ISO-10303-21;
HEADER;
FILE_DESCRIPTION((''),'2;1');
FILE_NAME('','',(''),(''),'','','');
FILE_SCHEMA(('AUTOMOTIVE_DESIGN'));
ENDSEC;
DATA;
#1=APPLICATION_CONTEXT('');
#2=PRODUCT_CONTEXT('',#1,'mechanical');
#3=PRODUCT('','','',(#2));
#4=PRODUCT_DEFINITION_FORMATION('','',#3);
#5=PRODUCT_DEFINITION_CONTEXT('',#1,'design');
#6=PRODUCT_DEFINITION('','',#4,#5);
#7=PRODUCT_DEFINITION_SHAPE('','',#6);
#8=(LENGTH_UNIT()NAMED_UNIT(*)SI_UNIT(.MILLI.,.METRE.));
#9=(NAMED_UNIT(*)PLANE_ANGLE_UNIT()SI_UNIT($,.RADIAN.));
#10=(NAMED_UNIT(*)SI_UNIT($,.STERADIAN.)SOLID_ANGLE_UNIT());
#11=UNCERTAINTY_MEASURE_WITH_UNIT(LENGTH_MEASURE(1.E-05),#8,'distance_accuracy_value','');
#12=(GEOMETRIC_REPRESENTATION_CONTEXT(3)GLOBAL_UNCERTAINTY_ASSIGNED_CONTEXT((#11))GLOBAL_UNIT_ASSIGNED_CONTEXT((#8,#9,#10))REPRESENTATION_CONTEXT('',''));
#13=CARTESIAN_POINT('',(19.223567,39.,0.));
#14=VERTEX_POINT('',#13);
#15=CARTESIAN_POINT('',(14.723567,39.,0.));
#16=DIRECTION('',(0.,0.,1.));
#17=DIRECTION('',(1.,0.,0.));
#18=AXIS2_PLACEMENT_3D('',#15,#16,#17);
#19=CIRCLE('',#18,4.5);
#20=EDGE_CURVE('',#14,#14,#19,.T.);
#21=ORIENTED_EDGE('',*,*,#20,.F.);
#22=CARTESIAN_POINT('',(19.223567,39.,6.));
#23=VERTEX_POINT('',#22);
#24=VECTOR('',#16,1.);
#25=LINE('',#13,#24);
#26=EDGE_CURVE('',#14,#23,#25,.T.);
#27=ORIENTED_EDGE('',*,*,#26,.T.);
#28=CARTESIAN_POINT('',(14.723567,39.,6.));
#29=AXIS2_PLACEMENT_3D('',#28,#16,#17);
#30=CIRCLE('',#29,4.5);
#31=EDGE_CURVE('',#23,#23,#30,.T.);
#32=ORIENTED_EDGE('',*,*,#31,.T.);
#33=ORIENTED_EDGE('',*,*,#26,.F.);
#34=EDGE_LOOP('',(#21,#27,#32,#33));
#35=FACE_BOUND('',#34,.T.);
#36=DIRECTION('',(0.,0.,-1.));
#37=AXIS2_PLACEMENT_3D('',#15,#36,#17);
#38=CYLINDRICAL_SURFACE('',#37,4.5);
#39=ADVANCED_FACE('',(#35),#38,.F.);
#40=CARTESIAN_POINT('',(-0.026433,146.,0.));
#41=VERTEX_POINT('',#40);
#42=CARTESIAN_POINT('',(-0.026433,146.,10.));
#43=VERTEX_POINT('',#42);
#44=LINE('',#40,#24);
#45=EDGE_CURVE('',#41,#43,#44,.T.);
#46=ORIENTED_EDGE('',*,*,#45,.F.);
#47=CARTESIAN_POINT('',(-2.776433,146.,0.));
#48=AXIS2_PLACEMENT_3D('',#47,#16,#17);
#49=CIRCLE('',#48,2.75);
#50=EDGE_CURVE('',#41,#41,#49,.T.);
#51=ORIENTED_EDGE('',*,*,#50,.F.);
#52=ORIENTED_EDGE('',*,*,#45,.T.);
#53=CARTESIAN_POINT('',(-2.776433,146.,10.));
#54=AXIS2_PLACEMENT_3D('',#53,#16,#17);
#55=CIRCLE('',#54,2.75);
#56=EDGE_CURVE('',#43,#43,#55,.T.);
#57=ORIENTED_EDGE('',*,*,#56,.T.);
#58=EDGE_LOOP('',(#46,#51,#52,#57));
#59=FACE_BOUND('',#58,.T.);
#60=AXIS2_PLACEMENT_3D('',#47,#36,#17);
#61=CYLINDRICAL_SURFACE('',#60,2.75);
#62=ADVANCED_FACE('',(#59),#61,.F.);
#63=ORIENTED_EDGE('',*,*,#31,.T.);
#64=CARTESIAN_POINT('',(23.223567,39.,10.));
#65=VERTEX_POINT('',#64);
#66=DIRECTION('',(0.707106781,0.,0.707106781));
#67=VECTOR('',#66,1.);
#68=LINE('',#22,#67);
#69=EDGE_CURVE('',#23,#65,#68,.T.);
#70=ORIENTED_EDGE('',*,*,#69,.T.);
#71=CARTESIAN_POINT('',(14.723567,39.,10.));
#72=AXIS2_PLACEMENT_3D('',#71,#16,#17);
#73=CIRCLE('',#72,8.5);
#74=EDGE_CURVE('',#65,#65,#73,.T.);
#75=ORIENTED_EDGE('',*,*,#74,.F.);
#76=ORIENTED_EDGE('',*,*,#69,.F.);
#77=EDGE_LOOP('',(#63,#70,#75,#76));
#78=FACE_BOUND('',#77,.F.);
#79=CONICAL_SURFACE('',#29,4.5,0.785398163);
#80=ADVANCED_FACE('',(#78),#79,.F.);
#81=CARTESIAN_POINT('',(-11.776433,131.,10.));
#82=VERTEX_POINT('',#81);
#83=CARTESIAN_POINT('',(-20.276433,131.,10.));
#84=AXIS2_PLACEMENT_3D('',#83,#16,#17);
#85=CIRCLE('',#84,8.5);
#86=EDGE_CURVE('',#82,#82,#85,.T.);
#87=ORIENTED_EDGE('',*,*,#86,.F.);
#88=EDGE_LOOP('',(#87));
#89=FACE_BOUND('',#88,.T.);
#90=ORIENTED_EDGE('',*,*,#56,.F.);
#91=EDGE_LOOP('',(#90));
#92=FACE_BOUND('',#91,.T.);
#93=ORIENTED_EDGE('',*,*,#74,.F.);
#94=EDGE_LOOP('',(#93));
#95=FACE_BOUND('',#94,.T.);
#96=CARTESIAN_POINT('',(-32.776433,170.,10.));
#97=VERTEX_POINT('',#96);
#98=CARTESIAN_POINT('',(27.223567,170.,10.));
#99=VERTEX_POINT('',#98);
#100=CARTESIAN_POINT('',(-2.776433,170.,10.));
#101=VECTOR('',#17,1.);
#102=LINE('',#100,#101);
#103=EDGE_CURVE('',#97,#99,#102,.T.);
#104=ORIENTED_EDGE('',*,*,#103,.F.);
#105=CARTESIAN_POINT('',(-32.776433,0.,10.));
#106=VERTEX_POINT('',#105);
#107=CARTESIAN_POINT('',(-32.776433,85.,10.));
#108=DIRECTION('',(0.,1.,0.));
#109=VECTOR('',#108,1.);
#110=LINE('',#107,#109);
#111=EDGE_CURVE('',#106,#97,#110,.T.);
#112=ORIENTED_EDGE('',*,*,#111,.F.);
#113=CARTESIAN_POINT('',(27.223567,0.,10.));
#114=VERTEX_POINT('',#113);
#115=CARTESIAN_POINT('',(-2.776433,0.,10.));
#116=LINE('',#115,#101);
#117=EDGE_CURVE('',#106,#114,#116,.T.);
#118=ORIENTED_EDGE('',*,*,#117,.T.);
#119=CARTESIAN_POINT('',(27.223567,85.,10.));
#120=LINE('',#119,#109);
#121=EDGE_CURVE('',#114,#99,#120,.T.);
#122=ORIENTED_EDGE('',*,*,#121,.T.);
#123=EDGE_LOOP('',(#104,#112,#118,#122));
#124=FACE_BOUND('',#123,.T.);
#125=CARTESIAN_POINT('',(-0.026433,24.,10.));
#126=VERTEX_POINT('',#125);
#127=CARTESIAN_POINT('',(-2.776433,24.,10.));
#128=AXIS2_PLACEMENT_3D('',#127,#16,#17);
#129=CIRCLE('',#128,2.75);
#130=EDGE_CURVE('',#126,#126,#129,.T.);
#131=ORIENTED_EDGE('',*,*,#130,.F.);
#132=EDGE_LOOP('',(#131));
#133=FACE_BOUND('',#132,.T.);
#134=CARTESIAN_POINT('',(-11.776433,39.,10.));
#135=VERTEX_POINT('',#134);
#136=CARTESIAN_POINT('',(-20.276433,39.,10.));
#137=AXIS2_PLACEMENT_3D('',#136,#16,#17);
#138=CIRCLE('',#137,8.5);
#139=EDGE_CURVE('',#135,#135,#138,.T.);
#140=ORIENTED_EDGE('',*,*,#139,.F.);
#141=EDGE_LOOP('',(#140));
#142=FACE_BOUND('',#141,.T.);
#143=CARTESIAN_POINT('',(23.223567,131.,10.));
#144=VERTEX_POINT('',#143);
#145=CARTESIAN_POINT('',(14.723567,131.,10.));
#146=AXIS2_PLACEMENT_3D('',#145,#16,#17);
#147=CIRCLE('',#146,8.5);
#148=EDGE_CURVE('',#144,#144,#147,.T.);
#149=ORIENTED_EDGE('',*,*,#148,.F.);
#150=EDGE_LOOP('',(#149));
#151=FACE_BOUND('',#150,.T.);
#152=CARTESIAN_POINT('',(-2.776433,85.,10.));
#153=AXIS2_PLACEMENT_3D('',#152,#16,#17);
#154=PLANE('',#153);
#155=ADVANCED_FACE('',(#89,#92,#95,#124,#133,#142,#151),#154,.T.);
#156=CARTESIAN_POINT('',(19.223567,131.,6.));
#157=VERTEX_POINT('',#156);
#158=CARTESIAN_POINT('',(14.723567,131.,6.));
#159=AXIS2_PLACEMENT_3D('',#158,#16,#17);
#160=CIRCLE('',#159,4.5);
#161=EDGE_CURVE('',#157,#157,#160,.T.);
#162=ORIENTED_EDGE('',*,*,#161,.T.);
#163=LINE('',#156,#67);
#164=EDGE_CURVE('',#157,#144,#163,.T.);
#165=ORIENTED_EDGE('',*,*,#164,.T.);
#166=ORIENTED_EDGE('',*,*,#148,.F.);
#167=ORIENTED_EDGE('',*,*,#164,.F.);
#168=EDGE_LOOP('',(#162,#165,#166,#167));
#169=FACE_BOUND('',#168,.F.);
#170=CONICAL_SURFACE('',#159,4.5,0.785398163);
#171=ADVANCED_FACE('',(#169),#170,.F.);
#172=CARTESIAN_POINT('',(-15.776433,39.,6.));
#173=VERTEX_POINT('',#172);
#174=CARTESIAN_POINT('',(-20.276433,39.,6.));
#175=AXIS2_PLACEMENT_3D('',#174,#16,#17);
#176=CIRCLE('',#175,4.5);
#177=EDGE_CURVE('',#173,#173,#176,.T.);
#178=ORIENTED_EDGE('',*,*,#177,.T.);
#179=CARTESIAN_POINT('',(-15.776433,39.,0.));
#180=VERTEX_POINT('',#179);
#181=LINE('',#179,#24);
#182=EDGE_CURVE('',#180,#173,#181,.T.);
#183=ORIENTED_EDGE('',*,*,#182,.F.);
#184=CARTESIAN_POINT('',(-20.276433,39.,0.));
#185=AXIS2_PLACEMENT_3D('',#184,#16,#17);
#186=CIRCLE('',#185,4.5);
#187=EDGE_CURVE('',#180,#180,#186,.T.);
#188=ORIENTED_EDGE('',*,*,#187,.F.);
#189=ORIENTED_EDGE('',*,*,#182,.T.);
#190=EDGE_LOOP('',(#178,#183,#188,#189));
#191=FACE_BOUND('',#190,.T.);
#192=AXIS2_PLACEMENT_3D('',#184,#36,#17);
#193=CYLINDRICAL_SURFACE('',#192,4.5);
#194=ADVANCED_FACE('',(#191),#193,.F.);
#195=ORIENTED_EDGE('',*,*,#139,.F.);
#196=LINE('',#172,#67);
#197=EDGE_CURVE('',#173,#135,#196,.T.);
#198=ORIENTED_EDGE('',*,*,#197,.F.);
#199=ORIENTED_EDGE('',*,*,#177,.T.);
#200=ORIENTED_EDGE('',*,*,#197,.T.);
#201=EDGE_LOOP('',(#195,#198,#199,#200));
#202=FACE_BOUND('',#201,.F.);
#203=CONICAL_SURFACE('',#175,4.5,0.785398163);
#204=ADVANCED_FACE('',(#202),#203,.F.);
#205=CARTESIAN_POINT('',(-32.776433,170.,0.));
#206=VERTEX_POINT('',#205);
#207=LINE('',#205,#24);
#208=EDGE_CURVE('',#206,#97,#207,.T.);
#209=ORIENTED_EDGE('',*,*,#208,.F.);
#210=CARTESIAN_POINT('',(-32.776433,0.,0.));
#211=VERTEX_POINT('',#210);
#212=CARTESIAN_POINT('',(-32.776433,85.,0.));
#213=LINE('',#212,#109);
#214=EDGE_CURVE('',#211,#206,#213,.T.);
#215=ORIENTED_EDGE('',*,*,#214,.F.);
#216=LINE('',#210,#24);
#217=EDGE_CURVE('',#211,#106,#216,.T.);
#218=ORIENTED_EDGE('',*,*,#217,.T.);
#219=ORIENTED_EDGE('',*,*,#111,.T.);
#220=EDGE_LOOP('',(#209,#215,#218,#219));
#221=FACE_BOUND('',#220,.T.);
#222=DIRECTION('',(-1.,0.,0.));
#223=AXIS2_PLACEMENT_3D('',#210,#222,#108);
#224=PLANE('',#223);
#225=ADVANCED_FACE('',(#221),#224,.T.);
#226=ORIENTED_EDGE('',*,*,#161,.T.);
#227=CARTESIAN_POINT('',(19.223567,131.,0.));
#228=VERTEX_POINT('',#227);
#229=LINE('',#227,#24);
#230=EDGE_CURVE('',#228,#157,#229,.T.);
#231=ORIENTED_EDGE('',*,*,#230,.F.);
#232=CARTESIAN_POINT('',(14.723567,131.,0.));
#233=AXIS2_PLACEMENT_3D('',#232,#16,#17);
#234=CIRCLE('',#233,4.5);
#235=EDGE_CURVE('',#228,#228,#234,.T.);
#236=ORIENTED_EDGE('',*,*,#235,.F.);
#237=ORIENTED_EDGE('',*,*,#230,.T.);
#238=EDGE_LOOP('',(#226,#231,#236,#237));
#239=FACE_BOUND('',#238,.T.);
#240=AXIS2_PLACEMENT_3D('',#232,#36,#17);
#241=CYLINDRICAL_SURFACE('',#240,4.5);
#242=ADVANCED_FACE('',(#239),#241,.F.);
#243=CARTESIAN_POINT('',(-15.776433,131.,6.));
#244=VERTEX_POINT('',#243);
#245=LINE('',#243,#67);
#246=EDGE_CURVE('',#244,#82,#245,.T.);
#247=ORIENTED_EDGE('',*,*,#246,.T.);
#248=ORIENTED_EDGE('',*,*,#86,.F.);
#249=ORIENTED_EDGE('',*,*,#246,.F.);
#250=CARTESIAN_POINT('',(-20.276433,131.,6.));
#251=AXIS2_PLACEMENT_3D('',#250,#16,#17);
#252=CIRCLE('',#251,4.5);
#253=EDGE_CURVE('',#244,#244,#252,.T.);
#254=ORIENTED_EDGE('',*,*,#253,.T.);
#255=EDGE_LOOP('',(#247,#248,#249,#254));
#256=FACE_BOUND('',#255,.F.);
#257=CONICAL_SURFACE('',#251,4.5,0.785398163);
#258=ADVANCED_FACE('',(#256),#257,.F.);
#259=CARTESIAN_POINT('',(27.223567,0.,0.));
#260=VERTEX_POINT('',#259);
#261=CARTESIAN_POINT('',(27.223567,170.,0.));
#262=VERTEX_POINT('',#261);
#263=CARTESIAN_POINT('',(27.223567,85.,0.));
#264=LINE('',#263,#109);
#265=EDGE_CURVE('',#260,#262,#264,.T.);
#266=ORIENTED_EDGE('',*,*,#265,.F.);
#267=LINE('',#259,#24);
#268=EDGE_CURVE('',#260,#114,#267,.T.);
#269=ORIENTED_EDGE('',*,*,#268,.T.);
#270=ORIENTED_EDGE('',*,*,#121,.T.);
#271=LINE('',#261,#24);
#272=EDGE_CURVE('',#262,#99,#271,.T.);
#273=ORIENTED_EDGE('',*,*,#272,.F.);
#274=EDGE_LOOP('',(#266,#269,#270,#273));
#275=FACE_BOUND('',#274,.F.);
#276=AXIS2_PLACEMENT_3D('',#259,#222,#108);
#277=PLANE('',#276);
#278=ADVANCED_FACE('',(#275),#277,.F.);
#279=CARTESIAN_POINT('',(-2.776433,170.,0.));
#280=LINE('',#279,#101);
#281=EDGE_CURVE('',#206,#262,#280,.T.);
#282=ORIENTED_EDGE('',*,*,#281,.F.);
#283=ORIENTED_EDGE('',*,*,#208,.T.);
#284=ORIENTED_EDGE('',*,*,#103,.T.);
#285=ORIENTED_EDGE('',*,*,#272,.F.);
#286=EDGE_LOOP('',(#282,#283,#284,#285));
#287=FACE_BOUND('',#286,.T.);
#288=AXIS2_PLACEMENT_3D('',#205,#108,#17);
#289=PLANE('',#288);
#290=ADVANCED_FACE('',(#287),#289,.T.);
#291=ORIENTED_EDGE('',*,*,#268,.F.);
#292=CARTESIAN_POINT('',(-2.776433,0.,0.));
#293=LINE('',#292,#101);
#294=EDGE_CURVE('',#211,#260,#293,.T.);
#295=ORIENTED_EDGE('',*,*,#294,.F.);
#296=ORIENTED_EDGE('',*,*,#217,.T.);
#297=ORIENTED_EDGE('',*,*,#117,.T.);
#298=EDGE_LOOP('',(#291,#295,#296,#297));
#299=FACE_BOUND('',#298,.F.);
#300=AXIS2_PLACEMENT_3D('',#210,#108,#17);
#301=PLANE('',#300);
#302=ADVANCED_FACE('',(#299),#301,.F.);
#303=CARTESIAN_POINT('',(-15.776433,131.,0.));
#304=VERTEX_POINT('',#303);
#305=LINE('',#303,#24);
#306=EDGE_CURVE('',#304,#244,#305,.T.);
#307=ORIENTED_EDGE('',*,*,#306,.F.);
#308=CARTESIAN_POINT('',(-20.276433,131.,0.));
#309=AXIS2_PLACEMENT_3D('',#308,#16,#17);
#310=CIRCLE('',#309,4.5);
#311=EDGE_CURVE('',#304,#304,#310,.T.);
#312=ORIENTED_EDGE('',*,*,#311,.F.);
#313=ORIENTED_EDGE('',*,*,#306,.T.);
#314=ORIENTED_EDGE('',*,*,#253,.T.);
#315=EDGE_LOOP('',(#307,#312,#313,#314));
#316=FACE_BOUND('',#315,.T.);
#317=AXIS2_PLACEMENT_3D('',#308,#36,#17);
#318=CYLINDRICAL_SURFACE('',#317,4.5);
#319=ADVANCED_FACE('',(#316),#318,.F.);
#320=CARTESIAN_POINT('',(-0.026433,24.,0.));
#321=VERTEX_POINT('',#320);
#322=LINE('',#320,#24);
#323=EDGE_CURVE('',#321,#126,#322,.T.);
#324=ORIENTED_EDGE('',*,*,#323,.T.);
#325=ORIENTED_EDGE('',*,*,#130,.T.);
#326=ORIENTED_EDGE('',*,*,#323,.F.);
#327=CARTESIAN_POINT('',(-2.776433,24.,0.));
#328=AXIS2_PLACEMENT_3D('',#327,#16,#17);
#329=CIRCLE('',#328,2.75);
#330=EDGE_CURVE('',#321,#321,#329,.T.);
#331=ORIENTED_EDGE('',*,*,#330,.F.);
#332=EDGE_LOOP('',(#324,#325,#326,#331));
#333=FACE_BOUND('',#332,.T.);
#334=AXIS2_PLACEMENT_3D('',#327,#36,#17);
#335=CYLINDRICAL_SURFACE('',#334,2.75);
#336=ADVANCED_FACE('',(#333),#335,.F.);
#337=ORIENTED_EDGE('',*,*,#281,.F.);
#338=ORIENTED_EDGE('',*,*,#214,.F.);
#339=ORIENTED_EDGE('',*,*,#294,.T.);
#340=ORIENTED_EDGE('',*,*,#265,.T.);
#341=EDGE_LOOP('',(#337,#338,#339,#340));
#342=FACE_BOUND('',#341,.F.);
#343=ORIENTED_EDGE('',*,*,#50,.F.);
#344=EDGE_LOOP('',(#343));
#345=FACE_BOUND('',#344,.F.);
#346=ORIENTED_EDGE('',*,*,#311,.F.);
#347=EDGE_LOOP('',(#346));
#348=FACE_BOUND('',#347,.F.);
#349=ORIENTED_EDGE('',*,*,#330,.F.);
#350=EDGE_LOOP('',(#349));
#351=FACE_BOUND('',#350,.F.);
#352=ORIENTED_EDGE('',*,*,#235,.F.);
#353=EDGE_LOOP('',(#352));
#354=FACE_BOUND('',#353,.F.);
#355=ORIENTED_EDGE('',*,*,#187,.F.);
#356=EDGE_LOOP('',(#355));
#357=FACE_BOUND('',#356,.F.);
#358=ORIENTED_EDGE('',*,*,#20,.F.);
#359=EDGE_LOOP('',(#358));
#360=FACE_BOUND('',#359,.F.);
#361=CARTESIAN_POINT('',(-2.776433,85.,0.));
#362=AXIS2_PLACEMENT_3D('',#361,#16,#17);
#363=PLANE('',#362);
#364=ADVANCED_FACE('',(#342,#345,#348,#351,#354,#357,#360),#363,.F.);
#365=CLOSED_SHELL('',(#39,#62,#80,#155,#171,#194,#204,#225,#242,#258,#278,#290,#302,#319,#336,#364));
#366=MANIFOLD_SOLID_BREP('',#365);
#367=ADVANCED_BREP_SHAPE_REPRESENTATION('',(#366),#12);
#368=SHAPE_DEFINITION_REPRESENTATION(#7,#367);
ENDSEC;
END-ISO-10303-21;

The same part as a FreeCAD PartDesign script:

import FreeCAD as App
import Part
import Sketcher
Q = App.Units.Quantity


def edges_at(feature, points):
    """Names of the edges that pass closest to the given points."""
    edges = feature.Shape.Edges
    near = lambda p: min(range(len(edges)), key=lambda i: edges[i].distToShape(Part.Vertex(*p))[0])
    return sorted({f"Edge{near(p) + 1}" for p in points})

doc = App.newDocument("Part")
body = doc.addObject("PartDesign::Body", "Body")

# Sketch on XY plane
sketch1 = body.newObject("Sketcher::SketchObject", "Sketch")
sketch1.AttachmentSupport = (doc.getObject("XY_Plane"), [""])
sketch1.MapMode = "FlatFace"
sketch1.addGeometry([
    Part.LineSegment(App.Vector(-32.8, 170, 0), App.Vector(-32.8, 0, 0)),  # 0
    Part.LineSegment(App.Vector(-32.8, 0, 0), App.Vector(27.2, 0, 0)),  # 1
    Part.LineSegment(App.Vector(27.2, 0, 0), App.Vector(27.2, 170, 0)),  # 2
    Part.LineSegment(App.Vector(27.2, 170, 0), App.Vector(-32.8, 170, 0)),  # 3
    Part.Circle(App.Vector(-20.3, 39, 0), App.Vector(0, 0, 1), 4.5),  # 4
    Part.Circle(App.Vector(-2.8, 24, 0), App.Vector(0, 0, 1), 2.8),  # 5
    Part.Circle(App.Vector(14.7, 39, 0), App.Vector(0, 0, 1), 4.5),  # 6
    Part.Circle(App.Vector(-20.3, 131, 0), App.Vector(0, 0, 1), 4.5),  # 7
    Part.Circle(App.Vector(-2.8, 146, 0), App.Vector(0, 0, 1), 2.8),  # 8
    Part.Circle(App.Vector(14.7, 131, 0), App.Vector(0, 0, 1), 4.5),  # 9
], False)
sketch1.addConstraint([
    Sketcher.Constraint("Coincident", 0, 2, 1, 1),
    Sketcher.Constraint("Coincident", 1, 2, 2, 1),
    Sketcher.Constraint("Coincident", 2, 2, 3, 1),
    Sketcher.Constraint("Coincident", 3, 2, 0, 1),
    Sketcher.Constraint("Vertical", 0),
    Sketcher.Constraint("Horizontal", 1),
    Sketcher.Constraint("Vertical", 2),
    Sketcher.Constraint("Horizontal", 3),
    Sketcher.Constraint("Equal", 4, 6),
    Sketcher.Constraint("Equal", 6, 7),
    Sketcher.Constraint("Equal", 5, 8),
    Sketcher.Constraint("Equal", 7, 9),
    Sketcher.Constraint("PointOnObject", 0, 2, -1),
    Sketcher.Constraint("Horizontal", 4, 3, 6, 3),
    Sketcher.Constraint("Horizontal", 7, 3, 9, 3),
    Sketcher.Constraint("Vertical", 4, 3, 7, 3),
    Sketcher.Constraint("Vertical", 5, 3, 8, 3),
    Sketcher.Constraint("Vertical", 6, 3, 9, 3),
    Sketcher.Constraint("Diameter", 4, Q("9 mm")),
    Sketcher.Constraint("Diameter", 5, Q("5.5 mm")),
    Sketcher.Constraint("DistanceX", 1, 1, 1, 2, Q("60 mm")),
    Sketcher.Constraint("DistanceY", 0, 2, 0, 1, Q("170 mm")),
    Sketcher.Constraint("DistanceY", -1, 1, 4, 3, Q("39 mm")),
    Sketcher.Constraint("DistanceY", -1, 1, 5, 3, Q("24 mm")),
    Sketcher.Constraint("DistanceY", -1, 1, 7, 3, Q("131 mm")),
    Sketcher.Constraint("DistanceY", -1, 1, 8, 3, Q("146 mm")),
    Sketcher.Constraint("DistanceX", 4, 3, 6, 3, Q("35 mm")),
    Sketcher.Constraint("DistanceX", 0, 2, 5, 3, Q("30 mm")),
    Sketcher.Constraint("DistanceX", 4, 3, 5, 3, Q("17.5 mm")),
    Sketcher.Constraint("DistanceX", 4, 3, -1, 1, Q("20.276433 mm")),
])
pad1 = body.newObject("PartDesign::Pad", "Pad")
pad1.Profile = sketch1
pad1.Length = 10
doc.recompute()

chamfer = body.newObject("PartDesign::Chamfer", "Chamfer")
chamfer.Base = (pad1, edges_at(pad1, [
    (-24.776, 39, 10),
    (10.224, 39, 10),
    (10.224, 131, 10),
    (-24.776, 131, 10),
]))
chamfer.Size = 4

doc.recompute()
